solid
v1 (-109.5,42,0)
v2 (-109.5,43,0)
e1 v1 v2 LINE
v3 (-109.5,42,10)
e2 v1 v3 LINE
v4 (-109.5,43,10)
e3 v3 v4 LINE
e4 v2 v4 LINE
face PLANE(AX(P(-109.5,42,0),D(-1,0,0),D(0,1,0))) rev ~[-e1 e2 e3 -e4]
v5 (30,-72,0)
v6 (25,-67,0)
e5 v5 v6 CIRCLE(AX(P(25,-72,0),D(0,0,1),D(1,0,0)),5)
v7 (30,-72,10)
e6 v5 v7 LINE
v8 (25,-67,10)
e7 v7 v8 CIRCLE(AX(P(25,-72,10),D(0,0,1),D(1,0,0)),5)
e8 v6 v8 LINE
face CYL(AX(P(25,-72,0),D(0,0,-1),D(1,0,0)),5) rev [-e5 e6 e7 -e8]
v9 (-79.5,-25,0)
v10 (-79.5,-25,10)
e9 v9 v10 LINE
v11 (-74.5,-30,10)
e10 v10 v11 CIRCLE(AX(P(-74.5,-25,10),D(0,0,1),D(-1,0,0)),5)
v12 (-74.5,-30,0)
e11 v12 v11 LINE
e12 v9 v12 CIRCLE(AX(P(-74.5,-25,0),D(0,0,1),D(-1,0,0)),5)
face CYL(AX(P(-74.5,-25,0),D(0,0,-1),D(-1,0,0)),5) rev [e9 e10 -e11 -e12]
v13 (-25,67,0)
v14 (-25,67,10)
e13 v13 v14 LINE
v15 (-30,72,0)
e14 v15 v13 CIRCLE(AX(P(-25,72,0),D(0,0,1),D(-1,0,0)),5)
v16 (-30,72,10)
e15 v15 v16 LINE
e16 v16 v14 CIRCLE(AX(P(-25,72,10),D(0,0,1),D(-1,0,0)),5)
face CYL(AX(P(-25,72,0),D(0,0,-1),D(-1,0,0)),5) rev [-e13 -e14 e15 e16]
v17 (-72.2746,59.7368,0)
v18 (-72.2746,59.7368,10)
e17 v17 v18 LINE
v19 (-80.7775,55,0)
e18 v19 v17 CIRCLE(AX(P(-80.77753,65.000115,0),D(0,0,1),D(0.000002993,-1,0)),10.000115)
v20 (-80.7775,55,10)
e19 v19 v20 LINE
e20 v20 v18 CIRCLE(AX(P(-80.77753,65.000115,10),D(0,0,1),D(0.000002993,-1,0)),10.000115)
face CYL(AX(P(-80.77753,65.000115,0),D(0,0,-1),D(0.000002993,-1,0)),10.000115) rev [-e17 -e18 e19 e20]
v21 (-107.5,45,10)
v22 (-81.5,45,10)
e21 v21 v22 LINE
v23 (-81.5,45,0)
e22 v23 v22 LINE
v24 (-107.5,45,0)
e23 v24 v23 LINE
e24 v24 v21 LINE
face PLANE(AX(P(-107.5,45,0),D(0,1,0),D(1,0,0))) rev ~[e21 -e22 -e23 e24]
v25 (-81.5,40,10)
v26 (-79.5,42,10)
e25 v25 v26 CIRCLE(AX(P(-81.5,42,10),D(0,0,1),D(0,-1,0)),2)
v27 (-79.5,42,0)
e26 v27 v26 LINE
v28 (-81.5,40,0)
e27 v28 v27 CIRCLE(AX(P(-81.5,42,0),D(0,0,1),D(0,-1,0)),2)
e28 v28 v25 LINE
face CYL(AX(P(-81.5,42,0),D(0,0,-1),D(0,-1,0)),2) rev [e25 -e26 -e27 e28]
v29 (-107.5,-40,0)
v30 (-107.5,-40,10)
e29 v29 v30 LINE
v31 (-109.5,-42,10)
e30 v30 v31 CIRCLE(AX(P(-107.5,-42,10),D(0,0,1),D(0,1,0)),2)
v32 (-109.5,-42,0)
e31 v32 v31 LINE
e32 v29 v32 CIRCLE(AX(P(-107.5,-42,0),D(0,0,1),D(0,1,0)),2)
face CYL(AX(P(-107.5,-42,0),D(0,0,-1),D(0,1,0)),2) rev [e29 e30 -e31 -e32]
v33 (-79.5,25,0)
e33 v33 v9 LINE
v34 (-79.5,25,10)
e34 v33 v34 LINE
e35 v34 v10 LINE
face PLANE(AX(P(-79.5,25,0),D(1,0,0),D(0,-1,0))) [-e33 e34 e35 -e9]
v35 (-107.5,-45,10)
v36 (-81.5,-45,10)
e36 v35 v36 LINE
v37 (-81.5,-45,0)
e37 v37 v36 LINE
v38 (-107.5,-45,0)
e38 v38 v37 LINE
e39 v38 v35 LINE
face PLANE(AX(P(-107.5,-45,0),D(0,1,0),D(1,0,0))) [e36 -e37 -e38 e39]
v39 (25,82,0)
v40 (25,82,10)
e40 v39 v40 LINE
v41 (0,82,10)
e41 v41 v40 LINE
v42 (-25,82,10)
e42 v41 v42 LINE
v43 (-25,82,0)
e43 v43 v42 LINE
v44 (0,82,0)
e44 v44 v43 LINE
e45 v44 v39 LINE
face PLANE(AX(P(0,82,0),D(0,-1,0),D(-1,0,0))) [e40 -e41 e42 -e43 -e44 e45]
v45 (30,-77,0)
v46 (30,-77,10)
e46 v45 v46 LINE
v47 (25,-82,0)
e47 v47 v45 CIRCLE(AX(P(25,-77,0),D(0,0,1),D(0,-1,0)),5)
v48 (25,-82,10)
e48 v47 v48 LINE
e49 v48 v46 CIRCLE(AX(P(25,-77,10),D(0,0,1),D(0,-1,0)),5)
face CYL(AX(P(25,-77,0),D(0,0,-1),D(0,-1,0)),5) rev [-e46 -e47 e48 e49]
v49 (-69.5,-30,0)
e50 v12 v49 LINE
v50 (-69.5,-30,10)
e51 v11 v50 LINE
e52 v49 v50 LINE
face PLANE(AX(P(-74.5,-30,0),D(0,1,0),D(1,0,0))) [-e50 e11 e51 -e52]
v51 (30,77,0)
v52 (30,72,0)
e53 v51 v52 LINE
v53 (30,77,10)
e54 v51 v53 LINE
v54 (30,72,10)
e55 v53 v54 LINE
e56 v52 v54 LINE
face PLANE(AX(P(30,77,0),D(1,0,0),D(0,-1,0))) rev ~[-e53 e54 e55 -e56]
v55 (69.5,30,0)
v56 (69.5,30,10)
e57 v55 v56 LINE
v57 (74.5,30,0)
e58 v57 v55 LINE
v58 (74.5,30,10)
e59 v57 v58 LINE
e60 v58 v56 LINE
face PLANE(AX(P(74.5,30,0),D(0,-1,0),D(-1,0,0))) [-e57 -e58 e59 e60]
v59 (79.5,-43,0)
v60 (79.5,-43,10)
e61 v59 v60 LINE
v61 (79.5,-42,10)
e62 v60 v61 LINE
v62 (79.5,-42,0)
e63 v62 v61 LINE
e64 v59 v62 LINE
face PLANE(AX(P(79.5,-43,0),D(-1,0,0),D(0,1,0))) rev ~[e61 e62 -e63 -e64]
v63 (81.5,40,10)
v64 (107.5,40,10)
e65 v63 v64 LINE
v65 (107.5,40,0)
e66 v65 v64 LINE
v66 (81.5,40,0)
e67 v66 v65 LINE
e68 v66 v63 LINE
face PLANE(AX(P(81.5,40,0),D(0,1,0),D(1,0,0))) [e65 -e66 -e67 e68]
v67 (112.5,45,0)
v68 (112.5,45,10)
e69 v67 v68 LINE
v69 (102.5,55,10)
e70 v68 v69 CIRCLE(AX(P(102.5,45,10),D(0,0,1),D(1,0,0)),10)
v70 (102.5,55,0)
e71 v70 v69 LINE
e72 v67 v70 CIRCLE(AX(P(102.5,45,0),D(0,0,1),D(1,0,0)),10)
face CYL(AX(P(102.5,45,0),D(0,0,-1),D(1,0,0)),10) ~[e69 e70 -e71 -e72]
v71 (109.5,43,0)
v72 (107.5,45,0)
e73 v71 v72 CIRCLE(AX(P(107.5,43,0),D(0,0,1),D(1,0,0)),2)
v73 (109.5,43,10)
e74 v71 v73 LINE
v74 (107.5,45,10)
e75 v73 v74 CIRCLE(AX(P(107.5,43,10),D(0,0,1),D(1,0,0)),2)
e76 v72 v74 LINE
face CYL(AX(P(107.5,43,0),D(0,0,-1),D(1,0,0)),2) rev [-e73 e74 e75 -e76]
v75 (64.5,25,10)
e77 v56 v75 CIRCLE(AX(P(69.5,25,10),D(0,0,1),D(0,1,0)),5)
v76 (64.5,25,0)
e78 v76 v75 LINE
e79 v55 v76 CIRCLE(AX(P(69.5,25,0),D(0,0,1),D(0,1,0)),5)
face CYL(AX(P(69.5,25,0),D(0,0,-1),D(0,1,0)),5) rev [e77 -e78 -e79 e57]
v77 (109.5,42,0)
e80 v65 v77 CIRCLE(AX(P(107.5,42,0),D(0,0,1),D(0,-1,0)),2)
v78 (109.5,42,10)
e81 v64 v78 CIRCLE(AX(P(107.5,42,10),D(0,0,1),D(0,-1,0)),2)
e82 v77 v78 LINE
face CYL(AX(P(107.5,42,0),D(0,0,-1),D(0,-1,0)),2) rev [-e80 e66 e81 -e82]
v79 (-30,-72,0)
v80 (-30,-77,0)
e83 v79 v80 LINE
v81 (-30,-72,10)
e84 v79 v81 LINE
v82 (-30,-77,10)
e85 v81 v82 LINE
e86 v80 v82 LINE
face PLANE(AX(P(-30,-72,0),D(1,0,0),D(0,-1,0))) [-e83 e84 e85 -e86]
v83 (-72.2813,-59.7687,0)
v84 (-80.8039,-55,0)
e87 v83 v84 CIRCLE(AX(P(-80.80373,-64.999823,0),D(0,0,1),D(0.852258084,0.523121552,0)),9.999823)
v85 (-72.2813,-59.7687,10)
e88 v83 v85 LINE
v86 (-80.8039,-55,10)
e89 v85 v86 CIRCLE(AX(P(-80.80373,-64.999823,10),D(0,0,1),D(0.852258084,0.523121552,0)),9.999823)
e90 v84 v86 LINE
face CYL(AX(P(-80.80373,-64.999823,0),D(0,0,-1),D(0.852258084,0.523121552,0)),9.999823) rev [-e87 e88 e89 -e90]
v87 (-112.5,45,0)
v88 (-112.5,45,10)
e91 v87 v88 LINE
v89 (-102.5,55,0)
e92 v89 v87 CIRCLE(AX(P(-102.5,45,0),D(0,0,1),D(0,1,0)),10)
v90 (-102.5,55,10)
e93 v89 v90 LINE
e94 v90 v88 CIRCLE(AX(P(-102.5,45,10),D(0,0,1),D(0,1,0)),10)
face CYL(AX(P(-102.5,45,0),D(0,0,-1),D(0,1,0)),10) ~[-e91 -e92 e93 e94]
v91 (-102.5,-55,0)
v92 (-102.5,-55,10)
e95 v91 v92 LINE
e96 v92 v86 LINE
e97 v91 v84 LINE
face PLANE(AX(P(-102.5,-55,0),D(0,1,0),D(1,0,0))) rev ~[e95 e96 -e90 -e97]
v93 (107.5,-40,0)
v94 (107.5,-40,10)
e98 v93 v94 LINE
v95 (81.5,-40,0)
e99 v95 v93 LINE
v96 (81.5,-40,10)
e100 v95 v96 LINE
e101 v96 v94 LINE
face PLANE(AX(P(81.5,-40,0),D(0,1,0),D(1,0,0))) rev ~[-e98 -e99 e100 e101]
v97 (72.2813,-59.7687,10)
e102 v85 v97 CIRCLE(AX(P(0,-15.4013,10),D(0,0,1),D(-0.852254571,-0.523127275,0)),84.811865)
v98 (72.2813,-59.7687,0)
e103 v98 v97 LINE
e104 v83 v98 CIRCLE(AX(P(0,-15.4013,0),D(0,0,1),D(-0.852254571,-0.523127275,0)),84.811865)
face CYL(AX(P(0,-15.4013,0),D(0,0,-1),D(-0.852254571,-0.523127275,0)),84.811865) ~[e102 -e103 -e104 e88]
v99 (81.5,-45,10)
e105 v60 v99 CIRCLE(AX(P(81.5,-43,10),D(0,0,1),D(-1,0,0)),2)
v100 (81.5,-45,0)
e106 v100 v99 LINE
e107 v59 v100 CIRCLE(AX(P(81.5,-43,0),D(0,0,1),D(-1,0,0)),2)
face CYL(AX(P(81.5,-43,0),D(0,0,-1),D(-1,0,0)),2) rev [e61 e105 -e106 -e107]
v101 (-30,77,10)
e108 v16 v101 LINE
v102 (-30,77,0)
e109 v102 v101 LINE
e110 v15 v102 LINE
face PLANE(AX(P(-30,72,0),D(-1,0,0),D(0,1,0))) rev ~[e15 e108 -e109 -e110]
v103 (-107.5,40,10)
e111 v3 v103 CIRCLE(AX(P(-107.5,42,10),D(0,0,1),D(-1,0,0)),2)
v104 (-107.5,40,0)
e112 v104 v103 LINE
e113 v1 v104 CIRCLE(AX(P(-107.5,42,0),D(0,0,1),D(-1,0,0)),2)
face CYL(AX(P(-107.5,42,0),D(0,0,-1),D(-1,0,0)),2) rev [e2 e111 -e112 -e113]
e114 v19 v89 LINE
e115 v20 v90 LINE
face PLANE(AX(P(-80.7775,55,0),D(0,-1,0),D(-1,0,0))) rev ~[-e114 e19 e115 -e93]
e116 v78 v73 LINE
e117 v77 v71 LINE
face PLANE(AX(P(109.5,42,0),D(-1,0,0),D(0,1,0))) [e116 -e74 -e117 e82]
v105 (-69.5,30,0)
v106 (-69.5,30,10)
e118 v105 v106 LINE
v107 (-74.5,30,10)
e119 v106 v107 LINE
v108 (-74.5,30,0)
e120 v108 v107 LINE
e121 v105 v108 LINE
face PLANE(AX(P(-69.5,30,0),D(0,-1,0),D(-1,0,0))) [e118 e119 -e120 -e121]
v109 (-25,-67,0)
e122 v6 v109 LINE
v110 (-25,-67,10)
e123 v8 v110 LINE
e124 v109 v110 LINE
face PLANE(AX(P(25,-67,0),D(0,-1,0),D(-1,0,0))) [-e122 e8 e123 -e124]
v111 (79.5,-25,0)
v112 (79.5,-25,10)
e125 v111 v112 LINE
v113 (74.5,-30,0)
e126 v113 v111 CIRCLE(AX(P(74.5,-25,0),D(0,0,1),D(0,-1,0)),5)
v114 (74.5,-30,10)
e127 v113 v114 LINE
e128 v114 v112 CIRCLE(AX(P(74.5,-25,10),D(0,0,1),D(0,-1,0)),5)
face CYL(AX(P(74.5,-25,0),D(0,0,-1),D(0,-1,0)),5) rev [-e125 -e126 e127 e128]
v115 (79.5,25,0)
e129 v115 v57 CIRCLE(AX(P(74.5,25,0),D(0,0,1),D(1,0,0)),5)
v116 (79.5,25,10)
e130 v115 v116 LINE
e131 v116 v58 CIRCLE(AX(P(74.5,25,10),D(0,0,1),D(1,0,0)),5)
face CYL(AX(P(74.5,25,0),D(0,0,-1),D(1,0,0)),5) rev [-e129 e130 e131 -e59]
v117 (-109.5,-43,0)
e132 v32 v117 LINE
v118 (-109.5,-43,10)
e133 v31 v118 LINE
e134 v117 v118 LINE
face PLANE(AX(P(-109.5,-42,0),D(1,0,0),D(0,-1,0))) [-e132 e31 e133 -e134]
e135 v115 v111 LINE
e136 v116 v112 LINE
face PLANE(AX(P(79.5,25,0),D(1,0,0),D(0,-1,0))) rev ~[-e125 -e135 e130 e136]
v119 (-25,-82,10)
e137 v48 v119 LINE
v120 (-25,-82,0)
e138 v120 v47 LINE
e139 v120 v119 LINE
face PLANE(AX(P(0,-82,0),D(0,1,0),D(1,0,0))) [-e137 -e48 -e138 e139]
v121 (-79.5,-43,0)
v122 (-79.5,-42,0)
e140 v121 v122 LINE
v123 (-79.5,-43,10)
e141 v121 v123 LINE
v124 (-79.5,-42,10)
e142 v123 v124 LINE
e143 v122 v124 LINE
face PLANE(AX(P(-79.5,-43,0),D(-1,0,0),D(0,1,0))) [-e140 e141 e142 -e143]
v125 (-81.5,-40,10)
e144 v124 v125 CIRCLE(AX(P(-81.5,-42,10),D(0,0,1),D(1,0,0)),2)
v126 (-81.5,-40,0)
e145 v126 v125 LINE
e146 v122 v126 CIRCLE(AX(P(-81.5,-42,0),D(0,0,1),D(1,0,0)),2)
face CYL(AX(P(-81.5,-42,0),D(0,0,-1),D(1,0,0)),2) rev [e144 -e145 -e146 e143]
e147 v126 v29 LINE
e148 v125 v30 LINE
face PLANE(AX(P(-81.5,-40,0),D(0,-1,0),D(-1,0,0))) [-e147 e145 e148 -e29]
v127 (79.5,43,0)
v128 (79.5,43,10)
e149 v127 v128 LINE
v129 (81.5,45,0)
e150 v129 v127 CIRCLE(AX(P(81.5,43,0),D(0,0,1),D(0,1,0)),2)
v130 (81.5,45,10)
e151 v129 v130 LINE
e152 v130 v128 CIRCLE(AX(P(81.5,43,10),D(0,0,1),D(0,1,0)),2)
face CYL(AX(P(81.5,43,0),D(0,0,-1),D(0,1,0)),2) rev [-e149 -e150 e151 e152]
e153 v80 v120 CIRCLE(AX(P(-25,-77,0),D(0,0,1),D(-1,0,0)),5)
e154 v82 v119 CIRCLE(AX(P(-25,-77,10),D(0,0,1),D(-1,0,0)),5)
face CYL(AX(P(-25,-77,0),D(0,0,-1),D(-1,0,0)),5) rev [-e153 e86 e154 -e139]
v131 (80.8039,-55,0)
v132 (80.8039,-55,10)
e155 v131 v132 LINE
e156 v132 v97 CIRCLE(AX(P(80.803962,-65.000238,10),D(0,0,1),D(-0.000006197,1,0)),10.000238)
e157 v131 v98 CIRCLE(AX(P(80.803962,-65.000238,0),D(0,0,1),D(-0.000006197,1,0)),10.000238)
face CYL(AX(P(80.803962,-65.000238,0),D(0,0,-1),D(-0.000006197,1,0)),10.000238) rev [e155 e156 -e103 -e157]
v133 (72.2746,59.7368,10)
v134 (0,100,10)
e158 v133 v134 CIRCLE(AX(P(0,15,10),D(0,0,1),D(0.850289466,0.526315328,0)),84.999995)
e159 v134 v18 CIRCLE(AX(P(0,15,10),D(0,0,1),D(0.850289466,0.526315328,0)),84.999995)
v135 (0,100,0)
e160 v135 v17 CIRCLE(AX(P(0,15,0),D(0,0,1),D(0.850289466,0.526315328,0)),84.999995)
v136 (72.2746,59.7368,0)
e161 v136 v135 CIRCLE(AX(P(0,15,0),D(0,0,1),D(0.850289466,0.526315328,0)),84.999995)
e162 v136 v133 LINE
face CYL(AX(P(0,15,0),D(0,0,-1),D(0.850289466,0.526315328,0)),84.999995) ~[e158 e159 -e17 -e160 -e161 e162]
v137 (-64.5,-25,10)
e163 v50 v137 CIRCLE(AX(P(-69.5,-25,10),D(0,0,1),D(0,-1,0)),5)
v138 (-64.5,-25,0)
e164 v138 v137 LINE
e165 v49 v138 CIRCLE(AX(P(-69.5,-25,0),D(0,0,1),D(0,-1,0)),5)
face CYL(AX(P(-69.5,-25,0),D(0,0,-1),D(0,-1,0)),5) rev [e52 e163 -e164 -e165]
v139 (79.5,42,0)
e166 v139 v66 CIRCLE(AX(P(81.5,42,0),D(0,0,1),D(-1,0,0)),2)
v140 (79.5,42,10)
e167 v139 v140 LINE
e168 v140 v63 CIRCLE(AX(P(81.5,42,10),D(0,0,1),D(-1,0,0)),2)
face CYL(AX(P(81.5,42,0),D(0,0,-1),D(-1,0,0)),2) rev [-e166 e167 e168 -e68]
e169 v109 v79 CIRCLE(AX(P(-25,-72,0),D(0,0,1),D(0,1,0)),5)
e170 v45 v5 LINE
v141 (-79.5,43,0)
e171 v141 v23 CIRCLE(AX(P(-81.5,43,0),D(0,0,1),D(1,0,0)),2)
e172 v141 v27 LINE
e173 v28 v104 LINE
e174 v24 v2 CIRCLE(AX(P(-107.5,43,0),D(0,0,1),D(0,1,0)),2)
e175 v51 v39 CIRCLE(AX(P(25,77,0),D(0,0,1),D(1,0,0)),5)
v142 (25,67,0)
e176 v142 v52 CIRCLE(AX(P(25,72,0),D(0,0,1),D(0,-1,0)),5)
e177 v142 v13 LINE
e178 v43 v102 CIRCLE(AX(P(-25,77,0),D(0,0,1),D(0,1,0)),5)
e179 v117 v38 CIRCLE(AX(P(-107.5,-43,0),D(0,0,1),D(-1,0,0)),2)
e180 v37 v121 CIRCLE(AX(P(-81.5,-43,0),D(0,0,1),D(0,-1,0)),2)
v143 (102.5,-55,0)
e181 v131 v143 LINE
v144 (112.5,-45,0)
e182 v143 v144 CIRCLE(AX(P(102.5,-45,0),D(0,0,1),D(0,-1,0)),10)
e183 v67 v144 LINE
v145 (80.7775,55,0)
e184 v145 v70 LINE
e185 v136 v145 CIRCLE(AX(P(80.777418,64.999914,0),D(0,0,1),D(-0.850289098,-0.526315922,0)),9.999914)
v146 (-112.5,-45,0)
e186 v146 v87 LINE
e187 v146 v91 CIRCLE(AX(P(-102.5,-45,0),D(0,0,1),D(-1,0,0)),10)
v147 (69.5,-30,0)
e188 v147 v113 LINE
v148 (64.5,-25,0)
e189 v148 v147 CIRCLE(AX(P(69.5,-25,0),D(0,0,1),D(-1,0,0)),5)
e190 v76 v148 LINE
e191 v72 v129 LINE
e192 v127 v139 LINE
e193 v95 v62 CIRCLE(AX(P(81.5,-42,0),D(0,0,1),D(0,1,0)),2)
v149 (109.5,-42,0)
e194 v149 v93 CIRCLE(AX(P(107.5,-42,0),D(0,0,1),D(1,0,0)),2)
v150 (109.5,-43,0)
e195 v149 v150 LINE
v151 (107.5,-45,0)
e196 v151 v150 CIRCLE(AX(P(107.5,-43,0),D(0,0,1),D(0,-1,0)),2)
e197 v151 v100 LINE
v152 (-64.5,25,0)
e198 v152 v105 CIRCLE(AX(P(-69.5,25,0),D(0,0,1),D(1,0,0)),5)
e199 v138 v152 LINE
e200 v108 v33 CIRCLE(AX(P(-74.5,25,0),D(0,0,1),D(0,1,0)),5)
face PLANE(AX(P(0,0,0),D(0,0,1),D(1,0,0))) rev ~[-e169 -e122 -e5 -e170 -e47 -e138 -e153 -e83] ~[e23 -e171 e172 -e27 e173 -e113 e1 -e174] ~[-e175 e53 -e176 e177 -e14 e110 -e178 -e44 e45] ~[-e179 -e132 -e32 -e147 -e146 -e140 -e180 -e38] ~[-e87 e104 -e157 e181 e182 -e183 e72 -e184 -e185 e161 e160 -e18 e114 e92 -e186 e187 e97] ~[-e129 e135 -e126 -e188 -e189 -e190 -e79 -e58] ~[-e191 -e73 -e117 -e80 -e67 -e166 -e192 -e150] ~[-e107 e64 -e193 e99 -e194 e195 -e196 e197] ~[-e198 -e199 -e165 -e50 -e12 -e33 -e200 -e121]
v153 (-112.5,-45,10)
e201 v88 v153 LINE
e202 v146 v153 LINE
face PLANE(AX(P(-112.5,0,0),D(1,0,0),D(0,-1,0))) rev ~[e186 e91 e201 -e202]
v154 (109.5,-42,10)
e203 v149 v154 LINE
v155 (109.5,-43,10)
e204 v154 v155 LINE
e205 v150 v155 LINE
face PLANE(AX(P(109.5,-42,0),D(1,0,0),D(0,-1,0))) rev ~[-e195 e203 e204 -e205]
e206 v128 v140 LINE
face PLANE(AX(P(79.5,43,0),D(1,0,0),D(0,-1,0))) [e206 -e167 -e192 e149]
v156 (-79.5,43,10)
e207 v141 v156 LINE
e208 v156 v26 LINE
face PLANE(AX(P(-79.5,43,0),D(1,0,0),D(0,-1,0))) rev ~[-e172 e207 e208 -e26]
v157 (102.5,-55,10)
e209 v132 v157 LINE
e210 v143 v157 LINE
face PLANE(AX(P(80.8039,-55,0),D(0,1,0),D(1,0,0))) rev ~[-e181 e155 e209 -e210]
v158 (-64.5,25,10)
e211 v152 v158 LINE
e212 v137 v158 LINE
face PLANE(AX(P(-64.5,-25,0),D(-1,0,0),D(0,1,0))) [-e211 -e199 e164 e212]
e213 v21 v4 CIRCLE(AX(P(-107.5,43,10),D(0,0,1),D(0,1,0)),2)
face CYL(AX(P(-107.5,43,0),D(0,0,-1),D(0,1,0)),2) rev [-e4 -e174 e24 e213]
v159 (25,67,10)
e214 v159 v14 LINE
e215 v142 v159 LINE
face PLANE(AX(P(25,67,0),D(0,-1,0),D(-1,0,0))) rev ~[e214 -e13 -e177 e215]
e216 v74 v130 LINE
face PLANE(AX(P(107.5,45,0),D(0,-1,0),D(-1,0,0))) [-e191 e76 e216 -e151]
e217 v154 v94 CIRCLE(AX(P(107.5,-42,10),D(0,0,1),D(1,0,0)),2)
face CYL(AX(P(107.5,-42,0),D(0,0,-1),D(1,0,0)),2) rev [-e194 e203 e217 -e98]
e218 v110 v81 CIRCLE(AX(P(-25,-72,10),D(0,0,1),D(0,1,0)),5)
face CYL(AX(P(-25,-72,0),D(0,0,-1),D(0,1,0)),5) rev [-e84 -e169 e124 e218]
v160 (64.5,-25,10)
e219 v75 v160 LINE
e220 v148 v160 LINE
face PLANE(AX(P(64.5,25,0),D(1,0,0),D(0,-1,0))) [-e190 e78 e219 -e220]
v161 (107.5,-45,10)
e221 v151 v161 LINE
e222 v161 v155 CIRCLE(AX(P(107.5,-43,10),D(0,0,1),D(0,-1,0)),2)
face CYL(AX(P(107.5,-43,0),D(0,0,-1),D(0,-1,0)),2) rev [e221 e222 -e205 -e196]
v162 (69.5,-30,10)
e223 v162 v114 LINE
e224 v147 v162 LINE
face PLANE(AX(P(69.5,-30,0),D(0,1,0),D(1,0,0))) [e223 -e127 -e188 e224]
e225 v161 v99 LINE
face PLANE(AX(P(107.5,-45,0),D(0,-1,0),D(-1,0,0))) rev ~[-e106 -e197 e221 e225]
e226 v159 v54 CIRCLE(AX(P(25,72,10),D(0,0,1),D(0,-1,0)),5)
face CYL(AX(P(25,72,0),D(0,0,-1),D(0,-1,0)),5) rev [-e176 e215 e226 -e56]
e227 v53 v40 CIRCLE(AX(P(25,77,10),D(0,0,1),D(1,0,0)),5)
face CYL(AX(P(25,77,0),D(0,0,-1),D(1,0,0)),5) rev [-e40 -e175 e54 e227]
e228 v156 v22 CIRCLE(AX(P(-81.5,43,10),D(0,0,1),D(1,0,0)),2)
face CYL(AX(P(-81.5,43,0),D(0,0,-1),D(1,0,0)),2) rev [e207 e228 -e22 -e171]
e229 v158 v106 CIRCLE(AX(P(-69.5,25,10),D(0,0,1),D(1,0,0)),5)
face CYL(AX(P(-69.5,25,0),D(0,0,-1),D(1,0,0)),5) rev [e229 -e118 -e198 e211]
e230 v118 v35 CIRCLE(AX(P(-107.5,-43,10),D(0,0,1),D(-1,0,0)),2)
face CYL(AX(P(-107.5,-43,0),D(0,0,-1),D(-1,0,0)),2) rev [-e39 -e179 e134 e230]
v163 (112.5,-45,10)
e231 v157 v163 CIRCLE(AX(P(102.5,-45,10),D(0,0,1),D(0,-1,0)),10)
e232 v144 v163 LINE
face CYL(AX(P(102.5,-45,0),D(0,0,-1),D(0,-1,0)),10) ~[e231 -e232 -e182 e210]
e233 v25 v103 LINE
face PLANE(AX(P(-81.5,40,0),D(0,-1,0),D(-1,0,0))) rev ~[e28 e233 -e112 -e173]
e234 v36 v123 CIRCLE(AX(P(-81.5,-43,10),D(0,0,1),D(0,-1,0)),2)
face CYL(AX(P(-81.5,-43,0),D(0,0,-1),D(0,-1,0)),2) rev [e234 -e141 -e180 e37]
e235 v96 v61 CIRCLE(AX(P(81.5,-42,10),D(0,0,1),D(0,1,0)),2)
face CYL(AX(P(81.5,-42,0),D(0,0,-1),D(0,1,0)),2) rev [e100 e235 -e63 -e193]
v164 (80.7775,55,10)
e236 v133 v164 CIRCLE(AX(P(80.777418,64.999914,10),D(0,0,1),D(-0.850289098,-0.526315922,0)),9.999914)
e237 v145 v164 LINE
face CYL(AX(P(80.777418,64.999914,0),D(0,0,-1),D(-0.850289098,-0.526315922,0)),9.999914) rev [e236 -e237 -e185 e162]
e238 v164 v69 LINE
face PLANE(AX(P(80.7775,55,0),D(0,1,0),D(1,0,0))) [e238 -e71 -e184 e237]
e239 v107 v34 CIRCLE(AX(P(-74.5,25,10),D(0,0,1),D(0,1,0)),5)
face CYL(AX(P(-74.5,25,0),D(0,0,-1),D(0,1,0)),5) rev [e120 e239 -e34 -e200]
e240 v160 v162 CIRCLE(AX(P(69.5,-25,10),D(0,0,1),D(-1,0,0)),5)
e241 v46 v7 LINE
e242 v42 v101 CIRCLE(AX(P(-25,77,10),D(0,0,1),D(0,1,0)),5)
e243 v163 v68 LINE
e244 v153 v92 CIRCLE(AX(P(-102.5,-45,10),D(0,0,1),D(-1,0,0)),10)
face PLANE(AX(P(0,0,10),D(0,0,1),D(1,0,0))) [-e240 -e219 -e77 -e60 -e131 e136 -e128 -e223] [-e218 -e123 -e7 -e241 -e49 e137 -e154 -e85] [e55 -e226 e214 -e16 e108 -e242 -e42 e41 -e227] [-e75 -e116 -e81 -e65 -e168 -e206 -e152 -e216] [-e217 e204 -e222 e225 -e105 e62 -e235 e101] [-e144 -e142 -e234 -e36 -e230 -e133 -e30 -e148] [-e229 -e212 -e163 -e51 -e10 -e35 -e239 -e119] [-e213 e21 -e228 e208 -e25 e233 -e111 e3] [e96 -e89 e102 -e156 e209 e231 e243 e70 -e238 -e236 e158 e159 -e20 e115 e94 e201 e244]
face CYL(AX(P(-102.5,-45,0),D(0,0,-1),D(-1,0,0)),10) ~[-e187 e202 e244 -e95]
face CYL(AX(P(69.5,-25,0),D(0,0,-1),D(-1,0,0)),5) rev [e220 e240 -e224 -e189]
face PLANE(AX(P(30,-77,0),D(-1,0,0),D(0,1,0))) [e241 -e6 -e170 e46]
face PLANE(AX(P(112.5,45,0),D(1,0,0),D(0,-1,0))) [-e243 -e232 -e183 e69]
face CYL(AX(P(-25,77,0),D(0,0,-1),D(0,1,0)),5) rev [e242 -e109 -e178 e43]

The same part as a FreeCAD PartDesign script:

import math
import FreeCAD as App
import Part
import Sketcher

doc = App.newDocument("Part")
body = doc.addObject("PartDesign::Body", "Body")

# Sketch on XY plane
sketch1 = doc.addObject("Sketcher::SketchObject", "Sketch")
body.addObject(sketch1)
sketch1.AttachmentSupport = (doc.XY_Plane, [""])
sketch1.MapMode = "FlatFace"
sketch1.addGeometry(Part.ArcOfCircle(Part.Circle(App.Vector(-80.8039, -65, 0), App.Vector(0, 0, 1), 10.000061), math.radians(31.542228), math.radians(90)), False)
sketch1.addGeometry(Part.ArcOfCircle(Part.Circle(App.Vector(0, -15.4013, 0), App.Vector(0, 0, 1), 84.811865), math.radians(-148.457742), math.radians(-31.542258)), False)
sketch1.addGeometry(Part.ArcOfCircle(Part.Circle(App.Vector(80.8039, -65, 0), App.Vector(0, 0, 1), 10), math.radians(90), math.radians(148.457772)), False)
sketch1.addGeometry(Part.LineSegment(App.Vector(80.8039, -55, 0), App.Vector(102.5, -55, 0)), False)
sketch1.addGeometry(Part.ArcOfCircle(Part.Circle(App.Vector(102.5, -45, 0), App.Vector(0, 0, 1), 10), math.radians(-90), math.radians(0)), False)
sketch1.addGeometry(Part.LineSegment(App.Vector(112.5, -45, 0), App.Vector(112.5, 45, 0)), False)
sketch1.addGeometry(Part.ArcOfCircle(Part.Circle(App.Vector(102.5, 45, 0), App.Vector(0, 0, 1), 10), math.radians(0), math.radians(90)), False)
sketch1.addGeometry(Part.LineSegment(App.Vector(102.5, 55, 0), App.Vector(80.7775, 55, 0)), False)
sketch1.addGeometry(Part.ArcOfCircle(Part.Circle(App.Vector(80.7775, 65, 0), App.Vector(0, 0, 1), 10.000029), math.radians(-148.242956), math.radians(-90)), False)
sketch1.addGeometry(Part.ArcOfCircle(Part.Circle(App.Vector(0, 15, 0), App.Vector(0, 0, 1), 84.999995), math.radians(31.756833), math.radians(90)), False)
sketch1.addGeometry(Part.ArcOfCircle(Part.Circle(App.Vector(0, 15, 0), App.Vector(0, 0, 1), 84.999995), math.radians(90), math.radians(148.243167)), False)
sketch1.addGeometry(Part.ArcOfCircle(Part.Circle(App.Vector(-80.7775, 65, 0), App.Vector(0, 0, 1), 10), math.radians(-90), math.radians(-31.757044)), False)
sketch1.addGeometry(Part.LineSegment(App.Vector(-80.7775, 55, 0), App.Vector(-102.5, 55, 0)), False)
sketch1.addGeometry(Part.ArcOfCircle(Part.Circle(App.Vector(-102.5, 45, 0), App.Vector(0, 0, 1), 10), math.radians(90), math.radians(180)), False)
sketch1.addGeometry(Part.LineSegment(App.Vector(-112.5, 45, 0), App.Vector(-112.5, -45, 0)), False)
sketch1.addGeometry(Part.ArcOfCircle(Part.Circle(App.Vector(-102.5, -45, 0), App.Vector(0, 0, 1), 10), math.radians(180), math.radians(270)), False)
sketch1.addGeometry(Part.LineSegment(App.Vector(-102.5, -55, 0), App.Vector(-80.8039, -55, 0)), False)
sketch1.addGeometry(Part.LineSegment(App.Vector(-81.5, -45, 0), App.Vector(-107.5, -45, 0)), False)
sketch1.addGeometry(Part.ArcOfCircle(Part.Circle(App.Vector(-107.5, -43, 0), App.Vector(0, 0, 1), 2), math.radians(180), math.radians(270)), False)
sketch1.addGeometry(Part.LineSegment(App.Vector(-109.5, -43, 0), App.Vector(-109.5, -42, 0)), False)
sketch1.addGeometry(Part.ArcOfCircle(Part.Circle(App.Vector(-107.5, -42, 0), App.Vector(0, 0, 1), 2), math.radians(90), math.radians(180)), False)
sketch1.addGeometry(Part.LineSegment(App.Vector(-107.5, -40, 0), App.Vector(-81.5, -40, 0)), False)
sketch1.addGeometry(Part.ArcOfCircle(Part.Circle(App.Vector(-81.5, -42, 0), App.Vector(0, 0, 1), 2), math.radians(0), math.radians(90)), False)
sketch1.addGeometry(Part.LineSegment(App.Vector(-79.5, -42, 0), App.Vector(-79.5, -43, 0)), False)
sketch1.addGeometry(Part.ArcOfCircle(Part.Circle(App.Vector(-81.5, -43, 0), App.Vector(0, 0, 1), 2), math.radians(-90), math.radians(0)), False)
sketch1.addGeometry(Part.LineSegment(App.Vector(25, -82, 0), App.Vector(-25, -82, 0)), False)
sketch1.addGeometry(Part.ArcOfCircle(Part.Circle(App.Vector(-25, -77, 0), App.Vector(0, 0, 1), 5), math.radians(180), math.radians(270)), False)
sketch1.addGeometry(Part.LineSegment(App.Vector(-30, -77, 0), App.Vector(-30, -72, 0)), False)
sketch1.addGeometry(Part.ArcOfCircle(Part.Circle(App.Vector(-25, -72, 0), App.Vector(0, 0, 1), 5), math.radians(90), math.radians(180)), False)
sketch1.addGeometry(Part.LineSegment(App.Vector(-25, -67, 0), App.Vector(25, -67, 0)), False)
sketch1.addGeometry(Part.ArcOfCircle(Part.Circle(App.Vector(25, -72, 0), App.Vector(0, 0, 1), 5), math.radians(0), math.radians(90)), False)
sketch1.addGeometry(Part.LineSegment(App.Vector(30, -72, 0), App.Vector(30, -77, 0)), False)
sketch1.addGeometry(Part.ArcOfCircle(Part.Circle(App.Vector(25, -77, 0), App.Vector(0, 0, 1), 5), math.radians(-90), math.radians(0)), False)
sketch1.addGeometry(Part.ArcOfCircle(Part.Circle(App.Vector(107.5, -43, 0), App.Vector(0, 0, 1), 2), math.radians(-90), math.radians(0)), False)
sketch1.addGeometry(Part.LineSegment(App.Vector(107.5, -45, 0), App.Vector(81.5, -45, 0)), False)
sketch1.addGeometry(Part.ArcOfCircle(Part.Circle(App.Vector(81.5, -43, 0), App.Vector(0, 0, 1), 2), math.radians(180), math.radians(270)), False)
sketch1.addGeometry(Part.LineSegment(App.Vector(79.5, -43, 0), App.Vector(79.5, -42, 0)), False)
sketch1.addGeometry(Part.ArcOfCircle(Part.Circle(App.Vector(81.5, -42, 0), App.Vector(0, 0, 1), 2), math.radians(90), math.radians(180)), False)
sketch1.addGeometry(Part.LineSegment(App.Vector(81.5, -40, 0), App.Vector(107.5, -40, 0)), False)
sketch1.addGeometry(Part.ArcOfCircle(Part.Circle(App.Vector(107.5, -42, 0), App.Vector(0, 0, 1), 2), math.radians(0), math.radians(90)), False)
sketch1.addGeometry(Part.LineSegment(App.Vector(109.5, -42, 0), App.Vector(109.5, -43, 0)), False)
sketch1.addGeometry(Part.LineSegment(App.Vector(-69.5, -30, 0), App.Vector(-74.5, -30, 0)), False)
sketch1.addGeometry(Part.ArcOfCircle(Part.Circle(App.Vector(-74.5, -25, 0), App.Vector(0, 0, 1), 5), math.radians(180), math.radians(270)), False)
sketch1.addGeometry(Part.LineSegment(App.Vector(-79.5, -25, 0), App.Vector(-79.5, 25, 0)), False)
sketch1.addGeometry(Part.ArcOfCircle(Part.Circle(App.Vector(-74.5, 25, 0), App.Vector(0, 0, 1), 5), math.radians(90), math.radians(180)), False)
sketch1.addGeometry(Part.LineSegment(App.Vector(-74.5, 30, 0), App.Vector(-69.5, 30, 0)), False)
sketch1.addGeometry(Part.ArcOfCircle(Part.Circle(App.Vector(-69.5, 25, 0), App.Vector(0, 0, 1), 5), math.radians(0), math.radians(90)), False)
sketch1.addGeometry(Part.LineSegment(App.Vector(-64.5, 25, 0), App.Vector(-64.5, -25, 0)), False)
sketch1.addGeometry(Part.ArcOfCircle(Part.Circle(App.Vector(-69.5, -25, 0), App.Vector(0, 0, 1), 5), math.radians(-90), math.radians(0)), False)
sketch1.addGeometry(Part.ArcOfCircle(Part.Circle(App.Vector(-107.5, 43, 0), App.Vector(0, 0, 1), 2), math.radians(90), math.radians(180)), False)
sketch1.addGeometry(Part.LineSegment(App.Vector(-107.5, 45, 0), App.Vector(-81.5, 45, 0)), False)
sketch1.addGeometry(Part.ArcOfCircle(Part.Circle(App.Vector(-81.5, 43, 0), App.Vector(0, 0, 1), 2), math.radians(0), math.radians(90)), False)
sketch1.addGeometry(Part.LineSegment(App.Vector(-79.5, 43, 0), App.Vector(-79.5, 42, 0)), False)
sketch1.addGeometry(Part.ArcOfCircle(Part.Circle(App.Vector(-81.5, 42, 0), App.Vector(0, 0, 1), 2), math.radians(-90), math.radians(0)), False)
sketch1.addGeometry(Part.LineSegment(App.Vector(-81.5, 40, 0), App.Vector(-107.5, 40, 0)), False)
sketch1.addGeometry(Part.ArcOfCircle(Part.Circle(App.Vector(-107.5, 42, 0), App.Vector(0, 0, 1), 2), math.radians(180), math.radians(270)), False)
sketch1.addGeometry(Part.LineSegment(App.Vector(-109.5, 42, 0), App.Vector(-109.5, 43, 0)), False)
sketch1.addGeometry(Part.LineSegment(App.Vector(69.5, 30, 0), App.Vector(74.5, 30, 0)), False)
sketch1.addGeometry(Part.ArcOfCircle(Part.Circle(App.Vector(74.5, 25, 0), App.Vector(0, 0, 1), 5), math.radians(0), math.radians(90)), False)
sketch1.addGeometry(Part.LineSegment(App.Vector(79.5, 25, 0), App.Vector(79.5, -25, 0)), False)
sketch1.addGeometry(Part.ArcOfCircle(Part.Circle(App.Vector(74.5, -25, 0), App.Vector(0, 0, 1), 5), math.radians(-90), math.radians(0)), False)
sketch1.addGeometry(Part.LineSegment(App.Vector(74.5, -30, 0), App.Vector(69.5, -30, 0)), False)
sketch1.addGeometry(Part.ArcOfCircle(Part.Circle(App.Vector(69.5, -25, 0), App.Vector(0, 0, 1), 5), math.radians(180), math.radians(270)), False)
sketch1.addGeometry(Part.LineSegment(App.Vector(64.5, -25, 0), App.Vector(64.5, 25, 0)), False)
sketch1.addGeometry(Part.ArcOfCircle(Part.Circle(App.Vector(69.5, 25, 0), App.Vector(0, 0, 1), 5), math.radians(90), math.radians(180)), False)
sketch1.addGeometry(Part.LineSegment(App.Vector(81.5, 45, 0), App.Vector(107.5, 45, 0)), False)
sketch1.addGeometry(Part.ArcOfCircle(Part.Circle(App.Vector(107.5, 43, 0), App.Vector(0, 0, 1), 2), math.radians(0), math.radians(90)), False)
sketch1.addGeometry(Part.LineSegment(App.Vector(109.5, 43, 0), App.Vector(109.5, 42, 0)), False)
sketch1.addGeometry(Part.ArcOfCircle(Part.Circle(App.Vector(107.5, 42, 0), App.Vector(0, 0, 1), 2), math.radians(-90), math.radians(0)), False)
sketch1.addGeometry(Part.LineSegment(App.Vector(107.5, 40, 0), App.Vector(81.5, 40, 0)), False)
sketch1.addGeometry(Part.ArcOfCircle(Part.Circle(App.Vector(81.5, 42, 0), App.Vector(0, 0, 1), 2), math.radians(180), math.radians(270)), False)
sketch1.addGeometry(Part.LineSegment(App.Vector(79.5, 42, 0), App.Vector(79.5, 43, 0)), False)
sketch1.addGeometry(Part.ArcOfCircle(Part.Circle(App.Vector(81.5, 43, 0), App.Vector(0, 0, 1), 2), math.radians(90), math.radians(180)), False)
sketch1.addGeometry(Part.LineSegment(App.Vector(-25, 82, 0), App.Vector(0, 82, 0)), False)
sketch1.addGeometry(Part.LineSegment(App.Vector(0, 82, 0), App.Vector(25, 82, 0)), False)
sketch1.addGeometry(Part.ArcOfCircle(Part.Circle(App.Vector(25, 77, 0), App.Vector(0, 0, 1), 5), math.radians(0), math.radians(90)), False)
sketch1.addGeometry(Part.LineSegment(App.Vector(30, 77, 0), App.Vector(30, 72, 0)), False)
sketch1.addGeometry(Part.ArcOfCircle(Part.Circle(App.Vector(25, 72, 0), App.Vector(0, 0, 1), 5), math.radians(-90), math.radians(0)), False)
sketch1.addGeometry(Part.LineSegment(App.Vector(25, 67, 0), App.Vector(-25, 67, 0)), False)
sketch1.addGeometry(Part.ArcOfCircle(Part.Circle(App.Vector(-25, 72, 0), App.Vector(0, 0, 1), 5), math.radians(180), math.radians(270)), False)
sketch1.addGeometry(Part.LineSegment(App.Vector(-30, 72, 0), App.Vector(-30, 77, 0)), False)
sketch1.addGeometry(Part.ArcOfCircle(Part.Circle(App.Vector(-25, 77, 0), App.Vector(0, 0, 1), 5), math.radians(90), math.radians(180)), False)
sketch1.addConstraint(Sketcher.Constraint("Tangent", 0, 1, 1, 1))
sketch1.addConstraint(Sketcher.Constraint("Tangent", 1, 2, 2, 2))
sketch1.addConstraint(Sketcher.Constraint("Tangent", 2, 1, 3, 1))
sketch1.addConstraint(Sketcher.Constraint("Tangent", 3, 2, 4, 1))
sketch1.addConstraint(Sketcher.Constraint("Tangent", 4, 2, 5, 1))
sketch1.addConstraint(Sketcher.Constraint("Tangent", 5, 2, 6, 1))
sketch1.addConstraint(Sketcher.Constraint("Tangent", 6, 2, 7, 1))
sketch1.addConstraint(Sketcher.Constraint("Tangent", 7, 2, 8, 2))
sketch1.addConstraint(Sketcher.Constraint("Tangent", 8, 1, 9, 1))
sketch1.addConstraint(Sketcher.Constraint("Tangent", 9, 2, 10, 1))
sketch1.addConstraint(Sketcher.Constraint("Tangent", 10, 2, 11, 2))
sketch1.addConstraint(Sketcher.Constraint("Tangent", 11, 1, 12, 1))
sketch1.addConstraint(Sketcher.Constraint("Tangent", 12, 2, 13, 1))
sketch1.addConstraint(Sketcher.Constraint("Tangent", 13, 2, 14, 1))
sketch1.addConstraint(Sketcher.Constraint("Tangent", 14, 2, 15, 1))
sketch1.addConstraint(Sketcher.Constraint("Tangent", 15, 2, 16, 1))
sketch1.addConstraint(Sketcher.Constraint("Tangent", 16, 2, 0, 2))
sketch1.addConstraint(Sketcher.Constraint("Tangent", 17, 2, 18, 2))
sketch1.addConstraint(Sketcher.Constraint("Tangent", 18, 1, 19, 1))
sketch1.addConstraint(Sketcher.Constraint("Tangent", 19, 2, 20, 2))
sketch1.addConstraint(Sketcher.Constraint("Tangent", 20, 1, 21, 1))
sketch1.addConstraint(Sketcher.Constraint("Tangent", 21, 2, 22, 2))
sketch1.addConstraint(Sketcher.Constraint("Tangent", 22, 1, 23, 1))
sketch1.addConstraint(Sketcher.Constraint("Tangent", 23, 2, 24, 2))
sketch1.addConstraint(Sketcher.Constraint("Tangent", 24, 1, 17, 1))
sketch1.addConstraint(Sketcher.Constraint("Tangent", 25, 2, 26, 2))
sketch1.addConstraint(Sketcher.Constraint("Tangent", 26, 1, 27, 1))
sketch1.addConstraint(Sketcher.Constraint("Tangent", 27, 2, 28, 2))
sketch1.addConstraint(Sketcher.Constraint("Tangent", 28, 1, 29, 1))
sketch1.addConstraint(Sketcher.Constraint("Tangent", 29, 2, 30, 2))
sketch1.addConstraint(Sketcher.Constraint("Tangent", 30, 1, 31, 1))
sketch1.addConstraint(Sketcher.Constraint("Tangent", 31, 2, 32, 2))
sketch1.addConstraint(Sketcher.Constraint("Tangent", 32, 1, 25, 1))
sketch1.addConstraint(Sketcher.Constraint("Tangent", 33, 1, 34, 1))
sketch1.addConstraint(Sketcher.Constraint("Tangent", 34, 2, 35, 2))
sketch1.addConstraint(Sketcher.Constraint("Tangent", 35, 1, 36, 1))
sketch1.addConstraint(Sketcher.Constraint("Tangent", 36, 2, 37, 2))
sketch1.addConstraint(Sketcher.Constraint("Tangent", 37, 1, 38, 1))
sketch1.addConstraint(Sketcher.Constraint("Tangent", 38, 2, 39, 2))
sketch1.addConstraint(Sketcher.Constraint("Tangent", 39, 1, 40, 1))
sketch1.addConstraint(Sketcher.Constraint("Tangent", 40, 2, 33, 2))
sketch1.addConstraint(Sketcher.Constraint("Tangent", 41, 2, 42, 2))
sketch1.addConstraint(Sketcher.Constraint("Tangent", 42, 1, 43, 1))
sketch1.addConstraint(Sketcher.Constraint("Tangent", 43, 2, 44, 2))
sketch1.addConstraint(Sketcher.Constraint("Tangent", 44, 1, 45, 1))
sketch1.addConstraint(Sketcher.Constraint("Tangent", 45, 2, 46, 2))
sketch1.addConstraint(Sketcher.Constraint("Tangent", 46, 1, 47, 1))
sketch1.addConstraint(Sketcher.Constraint("Tangent", 47, 2, 48, 2))
sketch1.addConstraint(Sketcher.Constraint("Tangent", 48, 1, 41, 1))
sketch1.addConstraint(Sketcher.Constraint("Tangent", 49, 1, 50, 1))
sketch1.addConstraint(Sketcher.Constraint("Tangent", 50, 2, 51, 2))
sketch1.addConstraint(Sketcher.Constraint("Tangent", 51, 1, 52, 1))
sketch1.addConstraint(Sketcher.Constraint("Tangent", 52, 2, 53, 2))
sketch1.addConstraint(Sketcher.Constraint("Tangent", 53, 1, 54, 1))
sketch1.addConstraint(Sketcher.Constraint("Tangent", 54, 2, 55, 2))
sketch1.addConstraint(Sketcher.Constraint("Tangent", 55, 1, 56, 1))
sketch1.addConstraint(Sketcher.Constraint("Tangent", 56, 2, 49, 2))
sketch1.addConstraint(Sketcher.Constraint("Tangent", 57, 2, 58, 2))
sketch1.addConstraint(Sketcher.Constraint("Tangent", 58, 1, 59, 1))
sketch1.addConstraint(Sketcher.Constraint("Tangent", 59, 2, 60, 2))
sketch1.addConstraint(Sketcher.Constraint("Tangent", 60, 1, 61, 1))
sketch1.addConstraint(Sketcher.Constraint("Tangent", 61, 2, 62, 2))
sketch1.addConstraint(Sketcher.Constraint("Tangent", 62, 1, 63, 1))
sketch1.addConstraint(Sketcher.Constraint("Tangent", 63, 2, 64, 2))
sketch1.addConstraint(Sketcher.Constraint("Tangent", 64, 1, 57, 1))
sketch1.addConstraint(Sketcher.Constraint("Tangent", 65, 2, 66, 2))
sketch1.addConstraint(Sketcher.Constraint("Tangent", 66, 1, 67, 1))
sketch1.addConstraint(Sketcher.Constraint("Tangent", 67, 2, 68, 2))
sketch1.addConstraint(Sketcher.Constraint("Tangent", 68, 1, 69, 1))
sketch1.addConstraint(Sketcher.Constraint("Tangent", 69, 2, 70, 2))
sketch1.addConstraint(Sketcher.Constraint("Tangent", 70, 1, 71, 1))
sketch1.addConstraint(Sketcher.Constraint("Tangent", 71, 2, 72, 2))
sketch1.addConstraint(Sketcher.Constraint("Tangent", 72, 1, 65, 1))
sketch1.addConstraint(Sketcher.Constraint("Coincident", 73, 2, 74, 1))
sketch1.addConstraint(Sketcher.Constraint("Tangent", 74, 2, 75, 2))
sketch1.addConstraint(Sketcher.Constraint("Tangent", 75, 1, 76, 1))
sketch1.addConstraint(Sketcher.Constraint("Tangent", 76, 2, 77, 2))
sketch1.addConstraint(Sketcher.Constraint("Tangent", 77, 1, 78, 1))
sketch1.addConstraint(Sketcher.Constraint("Tangent", 78, 2, 79, 2))
sketch1.addConstraint(Sketcher.Constraint("Tangent", 79, 1, 80, 1))
sketch1.addConstraint(Sketcher.Constraint("Tangent", 80, 2, 81, 2))
sketch1.addConstraint(Sketcher.Constraint("Tangent", 81, 1, 73, 1))
sketch1.addConstraint(Sketcher.Constraint("Horizontal", 3))
sketch1.addConstraint(Sketcher.Constraint("Vertical", 5))
sketch1.addConstraint(Sketcher.Constraint("Horizontal", 7))
sketch1.addConstraint(Sketcher.Constraint("Horizontal", 12))
sketch1.addConstraint(Sketcher.Constraint("Vertical", 14))
sketch1.addConstraint(Sketcher.Constraint("Horizontal", 16))
sketch1.addConstraint(Sketcher.Constraint("Horizontal", 17))
sketch1.addConstraint(Sketcher.Constraint("Vertical", 19))
sketch1.addConstraint(Sketcher.Constraint("Horizontal", 21))
sketch1.addConstraint(Sketcher.Constraint("Vertical", 23))
sketch1.addConstraint(Sketcher.Constraint("Horizontal", 25))
sketch1.addConstraint(Sketcher.Constraint("Vertical", 27))
sketch1.addConstraint(Sketcher.Constraint("Horizontal", 29))
sketch1.addConstraint(Sketcher.Constraint("Vertical", 31))
sketch1.addConstraint(Sketcher.Constraint("Horizontal", 34))
sketch1.addConstraint(Sketcher.Constraint("Vertical", 36))
sketch1.addConstraint(Sketcher.Constraint("Horizontal", 38))
sketch1.addConstraint(Sketcher.Constraint("Vertical", 40))
sketch1.addConstraint(Sketcher.Constraint("Horizontal", 41))
sketch1.addConstraint(Sketcher.Constraint("Vertical", 43))
sketch1.addConstraint(Sketcher.Constraint("Horizontal", 45))
sketch1.addConstraint(Sketcher.Constraint("Vertical", 47))
sketch1.addConstraint(Sketcher.Constraint("Horizontal", 50))
sketch1.addConstraint(Sketcher.Constraint("Vertical", 52))
sketch1.addConstraint(Sketcher.Constraint("Horizontal", 54))
sketch1.addConstraint(Sketcher.Constraint("Vertical", 56))
sketch1.addConstraint(Sketcher.Constraint("Horizontal", 57))
sketch1.addConstraint(Sketcher.Constraint("Vertical", 59))
sketch1.addConstraint(Sketcher.Constraint("Horizontal", 61))
sketch1.addConstraint(Sketcher.Constraint("Vertical", 63))
sketch1.addConstraint(Sketcher.Constraint("Horizontal", 65))
sketch1.addConstraint(Sketcher.Constraint("Vertical", 67))
sketch1.addConstraint(Sketcher.Constraint("Horizontal", 69))
sketch1.addConstraint(Sketcher.Constraint("Vertical", 71))
sketch1.addConstraint(Sketcher.Constraint("Horizontal", 73))
sketch1.addConstraint(Sketcher.Constraint("Horizontal", 74))
sketch1.addConstraint(Sketcher.Constraint("Vertical", 76))
sketch1.addConstraint(Sketcher.Constraint("Horizontal", 78))
sketch1.addConstraint(Sketcher.Constraint("Vertical", 80))
sketch1.addConstraint(Sketcher.Constraint("Equal", 0, 2))
sketch1.addConstraint(Sketcher.Constraint("Equal", 2, 4))
sketch1.addConstraint(Sketcher.Constraint("Equal", 4, 6))
sketch1.addConstraint(Sketcher.Constraint("Equal", 6, 8))
sketch1.addConstraint(Sketcher.Constraint("Equal", 9, 10))
sketch1.addConstraint(Sketcher.Constraint("Equal", 8, 11))
sketch1.addConstraint(Sketcher.Constraint("Equal", 11, 13))
sketch1.addConstraint(Sketcher.Constraint("Equal", 13, 15))
sketch1.addConstraint(Sketcher.Constraint("Equal", 18, 20))
sketch1.addConstraint(Sketcher.Constraint("Equal", 20, 22))
sketch1.addConstraint(Sketcher.Constraint("Equal", 22, 24))
sketch1.addConstraint(Sketcher.Constraint("Equal", 26, 28))
sketch1.addConstraint(Sketcher.Constraint("Equal", 28, 30))
sketch1.addConstraint(Sketcher.Constraint("Equal", 30, 32))
sketch1.addConstraint(Sketcher.Constraint("Equal", 24, 33))
sketch1.addConstraint(Sketcher.Constraint("Equal", 33, 35))
sketch1.addConstraint(Sketcher.Constraint("Equal", 35, 37))
sketch1.addConstraint(Sketcher.Constraint("Equal", 37, 39))
sketch1.addConstraint(Sketcher.Constraint("Equal", 32, 42))
sketch1.addConstraint(Sketcher.Constraint("Equal", 42, 44))
sketch1.addConstraint(Sketcher.Constraint("Equal", 44, 46))
sketch1.addConstraint(Sketcher.Constraint("Equal", 46, 48))
sketch1.addConstraint(Sketcher.Constraint("Equal", 39, 49))
sketch1.addConstraint(Sketcher.Constraint("Equal", 49, 51))
sketch1.addConstraint(Sketcher.Constraint("Equal", 51, 53))
sketch1.addConstraint(Sketcher.Constraint("Equal", 53, 55))
sketch1.addConstraint(Sketcher.Constraint("Equal", 48, 58))
sketch1.addConstraint(Sketcher.Constraint("Equal", 58, 60))
sketch1.addConstraint(Sketcher.Constraint("Equal", 60, 62))
sketch1.addConstraint(Sketcher.Constraint("Equal", 62, 64))
sketch1.addConstraint(Sketcher.Constraint("Equal", 55, 66))
sketch1.addConstraint(Sketcher.Constraint("Equal", 66, 68))
sketch1.addConstraint(Sketcher.Constraint("Equal", 68, 70))
sketch1.addConstraint(Sketcher.Constraint("Equal", 70, 72))
sketch1.addConstraint(Sketcher.Constraint("Equal", 64, 75))
sketch1.addConstraint(Sketcher.Constraint("Equal", 75, 77))
sketch1.addConstraint(Sketcher.Constraint("Equal", 77, 79))
sketch1.addConstraint(Sketcher.Constraint("Equal", 79, 81))
sketch1.addConstraint(Sketcher.Constraint("Symmetric", 4, 3, 13, 3, -1, 1))
sketch1.addConstraint(Sketcher.Constraint("Symmetric", 33, 3, 49, 3, -1, 1))
sketch1.addConstraint(Sketcher.Constraint("Symmetric", 37, 3, 53, 3, -1, 1))
sketch1.addConstraint(Sketcher.Constraint("Symmetric", 42, 3, 58, 3, -1, 1))
sketch1.addConstraint(Sketcher.Constraint("Symmetric", 46, 3, 62, 3, -1, 1))
sketch1.addConstraint(Sketcher.Constraint("Symmetric", 18, 3, 66, 3, -1, 1))
sketch1.addConstraint(Sketcher.Constraint("Symmetric", 22, 3, 70, 3, -1, 1))
sketch1.addConstraint(Sketcher.Constraint("Symmetric", 26, 3, 75, 3, -1, 1))
sketch1.addConstraint(Sketcher.Constraint("Symmetric", 30, 3, 79, 3, -1, 1))
sketch1.addConstraint(Sketcher.Constraint("Symmetric", 0, 3, 2, 3, -2))
sketch1.addConstraint(Sketcher.Constraint("Symmetric", 8, 3, 11, 3, -2))
sketch1.addConstraint(Sketcher.Constraint("Symmetric", 18, 3, 33, 3, -2))
sketch1.addConstraint(Sketcher.Constraint("Symmetric", 22, 3, 37, 3, -2))
sketch1.addConstraint(Sketcher.Constraint("PointOnObject", 9, 2, -2))
sketch1.addConstraint(Sketcher.Constraint("PointOnObject", 73, 2, -2))
sketch1.addConstraint(Sketcher.Constraint("Horizontal", 46, 3, 58, 3))
sketch1.addConstraint(Sketcher.Constraint("Horizontal", 14, 2, 17, 2))
sketch1.addConstraint(Sketcher.Constraint("Vertical", 32, 3, 75, 3))
sketch1.addConstraint(Sketcher.Constraint("Vertical", 23, 2, 42, 1))
sketch1.addConstraint(Sketcher.Constraint("Equal", 61, 27))
sketch1.addConstraint(Sketcher.Constraint("Equal", 78, 43))
sketch1.addConstraint(Sketcher.Constraint("Radius", 0, 10.0))
sketch1.addConstraint(Sketcher.Constraint("Radius", 18, 2.0))
sketch1.addConstraint(Sketcher.Constraint("Radius", 26, 5.0))
sketch1.addConstraint(Sketcher.Constraint("DistanceX", 41, 2, 41, 1, 5.0))
sketch1.addConstraint(Sketcher.Constraint("DistanceY", -1, 1, 9, 3, 15.0))
sketch1.addConstraint(Sketcher.Constraint("DistanceY", 2, 1, -1, 1, 55.0))
sketch1.addConstraint(Sketcher.Constraint("DistanceY", -1, 1, 9, 2, 100.0))
sketch1.addConstraint(Sketcher.Constraint("DistanceX", 26, 1, -1, 1, 30.0))
sketch1.addConstraint(Sketcher.Constraint("DistanceX", -1, 1, 4, 2, 112.5))
sketch1.addConstraint(Sketcher.Constraint("DistanceX", 17, 2, 17, 1, 26.0))
sketch1.addConstraint(Sketcher.Constraint("DistanceY", 19, 1, 19, 2, 1.0))
sketch1.addConstraint(Sketcher.Constraint("DistanceY", 26, 3, -1, 1, 77.0))
sketch1.addConstraint(Sketcher.Constraint("DistanceX", 18, 3, -1, 1, 107.5))
sketch1.addConstraint(Sketcher.Constraint("Radius", 1, 84.8119))
sketch1.addConstraint(Sketcher.Constraint("DistanceX", 3, 1, 3, 2, 21.696))
pad1 = doc.addObject("PartDesign::Pad", "Pad")
body.addObject(pad1)
pad1.Profile = sketch1
pad1.Length = 10

doc.recompute()
